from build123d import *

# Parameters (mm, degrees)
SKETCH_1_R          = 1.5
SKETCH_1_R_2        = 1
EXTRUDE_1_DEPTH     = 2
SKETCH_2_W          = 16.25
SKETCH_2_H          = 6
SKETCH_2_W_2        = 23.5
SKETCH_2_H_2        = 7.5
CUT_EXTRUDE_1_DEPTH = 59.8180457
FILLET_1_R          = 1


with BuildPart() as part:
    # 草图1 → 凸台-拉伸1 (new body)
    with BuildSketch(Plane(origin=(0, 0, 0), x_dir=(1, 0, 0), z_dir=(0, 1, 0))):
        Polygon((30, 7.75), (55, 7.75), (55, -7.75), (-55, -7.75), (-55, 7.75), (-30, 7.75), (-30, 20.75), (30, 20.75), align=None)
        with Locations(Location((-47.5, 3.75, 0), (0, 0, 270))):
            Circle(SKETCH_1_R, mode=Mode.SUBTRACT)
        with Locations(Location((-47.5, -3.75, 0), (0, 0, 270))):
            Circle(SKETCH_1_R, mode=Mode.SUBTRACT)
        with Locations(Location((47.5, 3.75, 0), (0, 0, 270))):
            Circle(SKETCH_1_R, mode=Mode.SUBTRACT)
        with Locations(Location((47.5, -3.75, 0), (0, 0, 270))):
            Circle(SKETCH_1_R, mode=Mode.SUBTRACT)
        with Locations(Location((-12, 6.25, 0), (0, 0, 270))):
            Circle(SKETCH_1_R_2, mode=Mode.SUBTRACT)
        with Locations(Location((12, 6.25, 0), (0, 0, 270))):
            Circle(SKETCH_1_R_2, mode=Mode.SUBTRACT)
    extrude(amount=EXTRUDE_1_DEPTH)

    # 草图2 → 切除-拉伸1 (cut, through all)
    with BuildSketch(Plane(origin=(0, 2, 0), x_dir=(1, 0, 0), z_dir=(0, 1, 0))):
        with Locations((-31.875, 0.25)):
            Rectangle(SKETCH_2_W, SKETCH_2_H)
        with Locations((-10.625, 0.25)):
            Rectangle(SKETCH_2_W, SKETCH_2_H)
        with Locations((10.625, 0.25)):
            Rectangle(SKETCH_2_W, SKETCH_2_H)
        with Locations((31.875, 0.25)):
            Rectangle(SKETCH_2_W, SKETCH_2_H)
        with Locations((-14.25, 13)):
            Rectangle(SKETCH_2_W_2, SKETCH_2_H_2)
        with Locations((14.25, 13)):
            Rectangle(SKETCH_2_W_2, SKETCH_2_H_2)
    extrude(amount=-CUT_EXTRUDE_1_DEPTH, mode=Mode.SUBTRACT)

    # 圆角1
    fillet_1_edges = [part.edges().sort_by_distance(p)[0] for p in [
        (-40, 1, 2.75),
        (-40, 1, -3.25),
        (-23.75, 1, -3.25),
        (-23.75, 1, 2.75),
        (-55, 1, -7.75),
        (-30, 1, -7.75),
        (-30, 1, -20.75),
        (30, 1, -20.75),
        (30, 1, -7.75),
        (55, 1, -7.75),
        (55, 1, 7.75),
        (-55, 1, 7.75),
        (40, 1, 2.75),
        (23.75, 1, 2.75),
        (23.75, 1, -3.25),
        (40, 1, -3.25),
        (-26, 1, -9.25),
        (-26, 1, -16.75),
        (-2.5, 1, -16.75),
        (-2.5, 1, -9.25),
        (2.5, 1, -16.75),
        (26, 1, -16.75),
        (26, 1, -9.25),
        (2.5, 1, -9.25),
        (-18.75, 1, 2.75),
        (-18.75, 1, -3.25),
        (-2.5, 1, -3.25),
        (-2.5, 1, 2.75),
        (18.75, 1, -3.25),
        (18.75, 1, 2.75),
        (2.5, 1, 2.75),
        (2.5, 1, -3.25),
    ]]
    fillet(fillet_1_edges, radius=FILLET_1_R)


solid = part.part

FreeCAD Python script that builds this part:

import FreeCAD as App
import Part
import Sketcher

V = App.Vector
Q = App.Units.Quantity


def edges_at(feature, points):
    """Names of the edges that pass closest to the given points."""
    edges = feature.Shape.Edges
    near = lambda p: min(range(len(edges)), key=lambda i: edges[i].distToShape(Part.Vertex(*p))[0])
    return sorted({f"Edge{near(p) + 1}" for p in points})

doc = App.newDocument("Part")
body = doc.addObject("PartDesign::Body", "Body")

# Sketch on XZ plane
sketch1 = body.newObject("Sketcher::SketchObject", "Sketch")
sketch1.AttachmentSupport = (doc.getObject("XZ_Plane"), [""])
sketch1.MapMode = "FlatFace"
sketch1.addGeometry([
    Part.LineSegment(V(55, -7.8, 0), V(30, -7.8, 0)),  # 0
    Part.LineSegment(V(30, -7.8, 0), V(30, -20.8, 0)),  # 1
    Part.LineSegment(V(30, -20.8, 0), V(-30, -20.8, 0)),  # 2
    Part.LineSegment(V(-30, -20.8, 0), V(-30, -7.8, 0)),  # 3
    Part.LineSegment(V(-30, -7.8, 0), V(-55, -7.8, 0)),  # 4
    Part.LineSegment(V(-55, -7.8, 0), V(-55, 7.8, 0)),  # 5
    Part.LineSegment(V(-55, 7.8, 0), V(55, 7.8, 0)),  # 6
    Part.LineSegment(V(55, 7.8, 0), V(55, -7.8, 0)),  # 7
    Part.Circle(V(47.5, 3.8, 0), V(0, 0, 1), 1.5),  # 8
    Part.Circle(V(-47.5, 3.8, 0), V(0, 0, 1), 1.5),  # 9
    Part.Circle(V(47.5, -3.8, 0), V(0, 0, 1), 1.5),  # 10
    Part.Circle(V(12, -6.2, 0), V(0, 0, 1), 1),  # 11
    Part.Circle(V(-47.5, -3.8, 0), V(0, 0, 1), 1.5),  # 12
    Part.Circle(V(-12, -6.2, 0), V(0, 0, 1), 1),  # 13
], False)
sketch1.addConstraint([
    Sketcher.Constraint("Coincident", 0, 2, 1, 1),
    Sketcher.Constraint("Coincident", 1, 2, 2, 1),
    Sketcher.Constraint("Coincident", 2, 2, 3, 1),
    Sketcher.Constraint("Coincident", 3, 2, 4, 1),
    Sketcher.Constraint("Coincident", 4, 2, 5, 1),
    Sketcher.Constraint("Coincident", 5, 2, 6, 1),
    Sketcher.Constraint("Coincident", 6, 2, 7, 1),
    Sketcher.Constraint("Coincident", 7, 2, 0, 1),
    Sketcher.Constraint("Horizontal", 0),
    Sketcher.Constraint("Vertical", 1),
    Sketcher.Constraint("Horizontal", 2),
    Sketcher.Constraint("Vertical", 3),
    Sketcher.Constraint("Horizontal", 4),
    Sketcher.Constraint("Vertical", 5),
    Sketcher.Constraint("Horizontal", 6),
    Sketcher.Constraint("Vertical", 7),
    Sketcher.Constraint("Equal", 8, 9),
    Sketcher.Constraint("Equal", 9, 10),
    Sketcher.Constraint("Equal", 10, 12),
    Sketcher.Constraint("Equal", 11, 13),
    Sketcher.Constraint("Symmetric", 9, 3, 10, 3, -1, 1),
    Sketcher.Constraint("Symmetric", 8, 3, 12, 3, -1, 1),
    Sketcher.Constraint("Symmetric", 4, 2, 6, 2, -1, 1),
    Sketcher.Constraint("Symmetric", 8, 3, 9, 3, -2),
    Sketcher.Constraint("Symmetric", 11, 3, 13, 3, -2),
    Sketcher.Constraint("Symmetric", 0, 2, 3, 2, -2),
    Sketcher.Constraint("Diameter", 8, Q("3 mm")),
    Sketcher.Constraint("Diameter", 11, Q("2 mm")),
    Sketcher.Constraint("DistanceX", 0, 2, 0, 1, Q("25 mm")),
    Sketcher.Constraint("DistanceX", 2, 2, 2, 1, Q("60 mm")),
    Sketcher.Constraint("DistanceY", 1, 2, 1, 1, Q("13 mm")),
    Sketcher.Constraint("DistanceY", 5, 1, 5, 2, Q("15.5 mm")),
    Sketcher.Constraint("DistanceX", -1, 1, 11, 3, Q("12 mm")),
    Sketcher.Constraint("DistanceX", 9, 3, 8, 3, Q("95 mm")),
    Sketcher.Constraint("DistanceY", 11, 3, 8, 3, Q("10 mm")),
    Sketcher.Constraint("DistanceY", 0, 2, 10, 3, Q("4 mm")),
])
pad1 = body.newObject("PartDesign::Pad", "Pad")
pad1.Profile = sketch1
pad1.Length = 2
pad1.Reversed = True

# Sketch on XZ plane
sketch2 = body.newObject("Sketcher::SketchObject", "Sketch001")
sketch2.AttachmentSupport = (doc.getObject("XZ_Plane"), [""])
sketch2.MapMode = "FlatFace"
sketch2.AttachmentOffset = App.Placement(V(0, 0, -2), App.Rotation())
sketch2.addGeometry([
    Part.LineSegment(V(-40, -3, 0), V(-40, 3, 0)),  # 0
    Part.LineSegment(V(-40, 3, 0), V(-24, 3, 0)),  # 1
    Part.LineSegment(V(-24, 3, 0), V(-24, -3, 0)),  # 2
    Part.LineSegment(V(-24, -3, 0), V(-40, -3, 0)),  # 3
    Part.LineSegment(V(-19, -3, 0), V(-19, 3, 0)),  # 4
    Part.LineSegment(V(-19, 3, 0), V(-2, 3, 0)),  # 5
    Part.LineSegment(V(-2, 3, 0), V(-2, -3, 0)),  # 6
    Part.LineSegment(V(-2, -3, 0), V(-19, -3, 0)),  # 7
    Part.LineSegment(V(2, -3, 0), V(2, 3, 0)),  # 8
    Part.LineSegment(V(2, 3, 0), V(19, 3, 0)),  # 9
    Part.LineSegment(V(19, 3, 0), V(19, -3, 0)),  # 10
    Part.LineSegment(V(19, -3, 0), V(2, -3, 0)),  # 11
    Part.LineSegment(V(24, -3, 0), V(24, 3, 0)),  # 12
    Part.LineSegment(V(24, 3, 0), V(40, 3, 0)),  # 13
    Part.LineSegment(V(40, 3, 0), V(40, -3, 0)),  # 14
    Part.LineSegment(V(40, -3, 0), V(24, -3, 0)),  # 15
    Part.LineSegment(V(-26, -17, 0), V(-26, -9, 0)),  # 16
    Part.LineSegment(V(-26, -9, 0), V(-2, -9, 0)),  # 17
    Part.LineSegment(V(-2, -9, 0), V(-2, -17, 0)),  # 18
    Part.LineSegment(V(-2, -17, 0), V(-26, -17, 0)),  # 19
    Part.LineSegment(V(2, -17, 0), V(2, -9, 0)),  # 20
    Part.LineSegment(V(2, -9, 0), V(26, -9, 0)),  # 21
    Part.LineSegment(V(26, -9, 0), V(26, -17, 0)),  # 22
    Part.LineSegment(V(26, -17, 0), V(2, -17, 0)),  # 23
], False)
sketch2.addConstraint([
    Sketcher.Constraint("Coincident", 0, 2, 1, 1),
    Sketcher.Constraint("Coincident", 1, 2, 2, 1),
    Sketcher.Constraint("Coincident", 2, 2, 3, 1),
    Sketcher.Constraint("Coincident", 3, 2, 0, 1),
    Sketcher.Constraint("Coincident", 4, 2, 5, 1),
    Sketcher.Constraint("Coincident", 5, 2, 6, 1),
    Sketcher.Constraint("Coincident", 6, 2, 7, 1),
    Sketcher.Constraint("Coincident", 7, 2, 4, 1),
    Sketcher.Constraint("Coincident", 8, 2, 9, 1),
    Sketcher.Constraint("Coincident", 9, 2, 10, 1),
    Sketcher.Constraint("Coincident", 10, 2, 11, 1),
    Sketcher.Constraint("Coincident", 11, 2, 8, 1),
    Sketcher.Constraint("Coincident", 12, 2, 13, 1),
    Sketcher.Constraint("Coincident", 13, 2, 14, 1),
    Sketcher.Constraint("Coincident", 14, 2, 15, 1),
    Sketcher.Constraint("Coincident", 15, 2, 12, 1),
    Sketcher.Constraint("Coincident", 16, 2, 17, 1),
    Sketcher.Constraint("Coincident", 17, 2, 18, 1),
    Sketcher.Constraint("Coincident", 18, 2, 19, 1),
    Sketcher.Constraint("Coincident", 19, 2, 16, 1),
    Sketcher.Constraint("Coincident", 20, 2, 21, 1),
    Sketcher.Constraint("Coincident", 21, 2, 22, 1),
    Sketcher.Constraint("Coincident", 22, 2, 23, 1),
    Sketcher.Constraint("Coincident", 23, 2, 20, 1),
    Sketcher.Constraint("Vertical", 0),
    Sketcher.Constraint("Horizontal", 1),
    Sketcher.Constraint("Vertical", 2),
    Sketcher.Constraint("Horizontal", 3),
    Sketcher.Constraint("Vertical", 4),
    Sketcher.Constraint("Horizontal", 5),
    Sketcher.Constraint("Vertical", 6),
    Sketcher.Constraint("Horizontal", 7),
    Sketcher.Constraint("Vertical", 8),
    Sketcher.Constraint("Horizontal", 9),
    Sketcher.Constraint("Vertical", 10),
    Sketcher.Constraint("Horizontal", 11),
    Sketcher.Constraint("Vertical", 12),
    Sketcher.Constraint("Horizontal", 13),
    Sketcher.Constraint("Vertical", 14),
    Sketcher.Constraint("Horizontal", 15),
    Sketcher.Constraint("Vertical", 16),
    Sketcher.Constraint("Horizontal", 17),
    Sketcher.Constraint("Vertical", 18),
    Sketcher.Constraint("Horizontal", 19),
    Sketcher.Constraint("Vertical", 20),
    Sketcher.Constraint("Horizontal", 21),
    Sketcher.Constraint("Vertical", 22),
    Sketcher.Constraint("Horizontal", 23),
    Sketcher.Constraint("Symmetric", 5, 2, 8, 2, -2),
    Sketcher.Constraint("Symmetric", 7, 2, 10, 2, -2),
    Sketcher.Constraint("Symmetric", 1, 2, 12, 2, -2),
    Sketcher.Constraint("Symmetric", 3, 2, 14, 2, -2),
    Sketcher.Constraint("Symmetric", 17, 2, 20, 2, -2),
    Sketcher.Constraint("Symmetric", 19, 2, 22, 2, -2),
    Sketcher.Constraint("Horizontal", 1, 2, 4, 2),
    Sketcher.Constraint("Horizontal", 3, 2, 6, 2),
    Sketcher.Constraint("Vertical", 6, 2, 17, 2),
    Sketcher.Constraint("Equal", 3, 5),
    Sketcher.Constraint("DistanceY", 0, 1, 0, 2, Q("6 mm")),
    Sketcher.Constraint("DistanceX", 17, 1, 17, 2, Q("23.5 mm")),
    Sketcher.Constraint("DistanceY", 16, 1, 16, 2, Q("7.5 mm")),
    Sketcher.Constraint("DistanceX", 0, 2, -1, 1, Q("40 mm")),
    Sketcher.Constraint("DistanceX", 16, 2, -1, 1, Q("26 mm")),
    Sketcher.Constraint("DistanceX", 1, 2, 4, 2, Q("5 mm")),
    Sketcher.Constraint("DistanceY", 16, 2, 2, 2, Q("6 mm")),
    Sketcher.Constraint("DistanceY", -1, 1, 0, 2, Q("2.75 mm")),
])
pocket1 = body.newObject("PartDesign::Pocket", "Pocket")
pocket1.Profile = sketch2
pocket1.Type = "ThroughAll"
pocket1.Reversed = True
doc.recompute()

fillet = body.newObject("PartDesign::Fillet", "Fillet")
fillet.Base = (pocket1, edges_at(pocket1, [
    (-40, 1, 2.75),
    (-40, 1, -3.25),
    (-23.75, 1, -3.25),
    (-23.75, 1, 2.75),
    (-55, 1, -7.75),
    (-30, 1, -7.75),
    (-30, 1, -20.75),
    (30, 1, -20.75),
    (30, 1, -7.75),
    (55, 1, -7.75),
    (55, 1, 7.75),
    (-55, 1, 7.75),
    (40, 1, 2.75),
    (23.75, 1, 2.75),
    (23.75, 1, -3.25),
    (40, 1, -3.25),
    (-26, 1, -9.25),
    (-26, 1, -16.75),
    (-2.5, 1, -16.75),
    (-2.5, 1, -9.25),
    (2.5, 1, -16.75),
    (26, 1, -16.75),
    (26, 1, -9.25),
    (2.5, 1, -9.25),
    (-18.75, 1, 2.75),
    (-18.75, 1, -3.25),
    (-2.5, 1, -3.25),
    (-2.5, 1, 2.75),
    (18.75, 1, -3.25),
    (18.75, 1, 2.75),
    (2.5, 1, 2.75),
    (2.5, 1, -3.25),
]))
fillet.Radius = 1

doc.recompute()
